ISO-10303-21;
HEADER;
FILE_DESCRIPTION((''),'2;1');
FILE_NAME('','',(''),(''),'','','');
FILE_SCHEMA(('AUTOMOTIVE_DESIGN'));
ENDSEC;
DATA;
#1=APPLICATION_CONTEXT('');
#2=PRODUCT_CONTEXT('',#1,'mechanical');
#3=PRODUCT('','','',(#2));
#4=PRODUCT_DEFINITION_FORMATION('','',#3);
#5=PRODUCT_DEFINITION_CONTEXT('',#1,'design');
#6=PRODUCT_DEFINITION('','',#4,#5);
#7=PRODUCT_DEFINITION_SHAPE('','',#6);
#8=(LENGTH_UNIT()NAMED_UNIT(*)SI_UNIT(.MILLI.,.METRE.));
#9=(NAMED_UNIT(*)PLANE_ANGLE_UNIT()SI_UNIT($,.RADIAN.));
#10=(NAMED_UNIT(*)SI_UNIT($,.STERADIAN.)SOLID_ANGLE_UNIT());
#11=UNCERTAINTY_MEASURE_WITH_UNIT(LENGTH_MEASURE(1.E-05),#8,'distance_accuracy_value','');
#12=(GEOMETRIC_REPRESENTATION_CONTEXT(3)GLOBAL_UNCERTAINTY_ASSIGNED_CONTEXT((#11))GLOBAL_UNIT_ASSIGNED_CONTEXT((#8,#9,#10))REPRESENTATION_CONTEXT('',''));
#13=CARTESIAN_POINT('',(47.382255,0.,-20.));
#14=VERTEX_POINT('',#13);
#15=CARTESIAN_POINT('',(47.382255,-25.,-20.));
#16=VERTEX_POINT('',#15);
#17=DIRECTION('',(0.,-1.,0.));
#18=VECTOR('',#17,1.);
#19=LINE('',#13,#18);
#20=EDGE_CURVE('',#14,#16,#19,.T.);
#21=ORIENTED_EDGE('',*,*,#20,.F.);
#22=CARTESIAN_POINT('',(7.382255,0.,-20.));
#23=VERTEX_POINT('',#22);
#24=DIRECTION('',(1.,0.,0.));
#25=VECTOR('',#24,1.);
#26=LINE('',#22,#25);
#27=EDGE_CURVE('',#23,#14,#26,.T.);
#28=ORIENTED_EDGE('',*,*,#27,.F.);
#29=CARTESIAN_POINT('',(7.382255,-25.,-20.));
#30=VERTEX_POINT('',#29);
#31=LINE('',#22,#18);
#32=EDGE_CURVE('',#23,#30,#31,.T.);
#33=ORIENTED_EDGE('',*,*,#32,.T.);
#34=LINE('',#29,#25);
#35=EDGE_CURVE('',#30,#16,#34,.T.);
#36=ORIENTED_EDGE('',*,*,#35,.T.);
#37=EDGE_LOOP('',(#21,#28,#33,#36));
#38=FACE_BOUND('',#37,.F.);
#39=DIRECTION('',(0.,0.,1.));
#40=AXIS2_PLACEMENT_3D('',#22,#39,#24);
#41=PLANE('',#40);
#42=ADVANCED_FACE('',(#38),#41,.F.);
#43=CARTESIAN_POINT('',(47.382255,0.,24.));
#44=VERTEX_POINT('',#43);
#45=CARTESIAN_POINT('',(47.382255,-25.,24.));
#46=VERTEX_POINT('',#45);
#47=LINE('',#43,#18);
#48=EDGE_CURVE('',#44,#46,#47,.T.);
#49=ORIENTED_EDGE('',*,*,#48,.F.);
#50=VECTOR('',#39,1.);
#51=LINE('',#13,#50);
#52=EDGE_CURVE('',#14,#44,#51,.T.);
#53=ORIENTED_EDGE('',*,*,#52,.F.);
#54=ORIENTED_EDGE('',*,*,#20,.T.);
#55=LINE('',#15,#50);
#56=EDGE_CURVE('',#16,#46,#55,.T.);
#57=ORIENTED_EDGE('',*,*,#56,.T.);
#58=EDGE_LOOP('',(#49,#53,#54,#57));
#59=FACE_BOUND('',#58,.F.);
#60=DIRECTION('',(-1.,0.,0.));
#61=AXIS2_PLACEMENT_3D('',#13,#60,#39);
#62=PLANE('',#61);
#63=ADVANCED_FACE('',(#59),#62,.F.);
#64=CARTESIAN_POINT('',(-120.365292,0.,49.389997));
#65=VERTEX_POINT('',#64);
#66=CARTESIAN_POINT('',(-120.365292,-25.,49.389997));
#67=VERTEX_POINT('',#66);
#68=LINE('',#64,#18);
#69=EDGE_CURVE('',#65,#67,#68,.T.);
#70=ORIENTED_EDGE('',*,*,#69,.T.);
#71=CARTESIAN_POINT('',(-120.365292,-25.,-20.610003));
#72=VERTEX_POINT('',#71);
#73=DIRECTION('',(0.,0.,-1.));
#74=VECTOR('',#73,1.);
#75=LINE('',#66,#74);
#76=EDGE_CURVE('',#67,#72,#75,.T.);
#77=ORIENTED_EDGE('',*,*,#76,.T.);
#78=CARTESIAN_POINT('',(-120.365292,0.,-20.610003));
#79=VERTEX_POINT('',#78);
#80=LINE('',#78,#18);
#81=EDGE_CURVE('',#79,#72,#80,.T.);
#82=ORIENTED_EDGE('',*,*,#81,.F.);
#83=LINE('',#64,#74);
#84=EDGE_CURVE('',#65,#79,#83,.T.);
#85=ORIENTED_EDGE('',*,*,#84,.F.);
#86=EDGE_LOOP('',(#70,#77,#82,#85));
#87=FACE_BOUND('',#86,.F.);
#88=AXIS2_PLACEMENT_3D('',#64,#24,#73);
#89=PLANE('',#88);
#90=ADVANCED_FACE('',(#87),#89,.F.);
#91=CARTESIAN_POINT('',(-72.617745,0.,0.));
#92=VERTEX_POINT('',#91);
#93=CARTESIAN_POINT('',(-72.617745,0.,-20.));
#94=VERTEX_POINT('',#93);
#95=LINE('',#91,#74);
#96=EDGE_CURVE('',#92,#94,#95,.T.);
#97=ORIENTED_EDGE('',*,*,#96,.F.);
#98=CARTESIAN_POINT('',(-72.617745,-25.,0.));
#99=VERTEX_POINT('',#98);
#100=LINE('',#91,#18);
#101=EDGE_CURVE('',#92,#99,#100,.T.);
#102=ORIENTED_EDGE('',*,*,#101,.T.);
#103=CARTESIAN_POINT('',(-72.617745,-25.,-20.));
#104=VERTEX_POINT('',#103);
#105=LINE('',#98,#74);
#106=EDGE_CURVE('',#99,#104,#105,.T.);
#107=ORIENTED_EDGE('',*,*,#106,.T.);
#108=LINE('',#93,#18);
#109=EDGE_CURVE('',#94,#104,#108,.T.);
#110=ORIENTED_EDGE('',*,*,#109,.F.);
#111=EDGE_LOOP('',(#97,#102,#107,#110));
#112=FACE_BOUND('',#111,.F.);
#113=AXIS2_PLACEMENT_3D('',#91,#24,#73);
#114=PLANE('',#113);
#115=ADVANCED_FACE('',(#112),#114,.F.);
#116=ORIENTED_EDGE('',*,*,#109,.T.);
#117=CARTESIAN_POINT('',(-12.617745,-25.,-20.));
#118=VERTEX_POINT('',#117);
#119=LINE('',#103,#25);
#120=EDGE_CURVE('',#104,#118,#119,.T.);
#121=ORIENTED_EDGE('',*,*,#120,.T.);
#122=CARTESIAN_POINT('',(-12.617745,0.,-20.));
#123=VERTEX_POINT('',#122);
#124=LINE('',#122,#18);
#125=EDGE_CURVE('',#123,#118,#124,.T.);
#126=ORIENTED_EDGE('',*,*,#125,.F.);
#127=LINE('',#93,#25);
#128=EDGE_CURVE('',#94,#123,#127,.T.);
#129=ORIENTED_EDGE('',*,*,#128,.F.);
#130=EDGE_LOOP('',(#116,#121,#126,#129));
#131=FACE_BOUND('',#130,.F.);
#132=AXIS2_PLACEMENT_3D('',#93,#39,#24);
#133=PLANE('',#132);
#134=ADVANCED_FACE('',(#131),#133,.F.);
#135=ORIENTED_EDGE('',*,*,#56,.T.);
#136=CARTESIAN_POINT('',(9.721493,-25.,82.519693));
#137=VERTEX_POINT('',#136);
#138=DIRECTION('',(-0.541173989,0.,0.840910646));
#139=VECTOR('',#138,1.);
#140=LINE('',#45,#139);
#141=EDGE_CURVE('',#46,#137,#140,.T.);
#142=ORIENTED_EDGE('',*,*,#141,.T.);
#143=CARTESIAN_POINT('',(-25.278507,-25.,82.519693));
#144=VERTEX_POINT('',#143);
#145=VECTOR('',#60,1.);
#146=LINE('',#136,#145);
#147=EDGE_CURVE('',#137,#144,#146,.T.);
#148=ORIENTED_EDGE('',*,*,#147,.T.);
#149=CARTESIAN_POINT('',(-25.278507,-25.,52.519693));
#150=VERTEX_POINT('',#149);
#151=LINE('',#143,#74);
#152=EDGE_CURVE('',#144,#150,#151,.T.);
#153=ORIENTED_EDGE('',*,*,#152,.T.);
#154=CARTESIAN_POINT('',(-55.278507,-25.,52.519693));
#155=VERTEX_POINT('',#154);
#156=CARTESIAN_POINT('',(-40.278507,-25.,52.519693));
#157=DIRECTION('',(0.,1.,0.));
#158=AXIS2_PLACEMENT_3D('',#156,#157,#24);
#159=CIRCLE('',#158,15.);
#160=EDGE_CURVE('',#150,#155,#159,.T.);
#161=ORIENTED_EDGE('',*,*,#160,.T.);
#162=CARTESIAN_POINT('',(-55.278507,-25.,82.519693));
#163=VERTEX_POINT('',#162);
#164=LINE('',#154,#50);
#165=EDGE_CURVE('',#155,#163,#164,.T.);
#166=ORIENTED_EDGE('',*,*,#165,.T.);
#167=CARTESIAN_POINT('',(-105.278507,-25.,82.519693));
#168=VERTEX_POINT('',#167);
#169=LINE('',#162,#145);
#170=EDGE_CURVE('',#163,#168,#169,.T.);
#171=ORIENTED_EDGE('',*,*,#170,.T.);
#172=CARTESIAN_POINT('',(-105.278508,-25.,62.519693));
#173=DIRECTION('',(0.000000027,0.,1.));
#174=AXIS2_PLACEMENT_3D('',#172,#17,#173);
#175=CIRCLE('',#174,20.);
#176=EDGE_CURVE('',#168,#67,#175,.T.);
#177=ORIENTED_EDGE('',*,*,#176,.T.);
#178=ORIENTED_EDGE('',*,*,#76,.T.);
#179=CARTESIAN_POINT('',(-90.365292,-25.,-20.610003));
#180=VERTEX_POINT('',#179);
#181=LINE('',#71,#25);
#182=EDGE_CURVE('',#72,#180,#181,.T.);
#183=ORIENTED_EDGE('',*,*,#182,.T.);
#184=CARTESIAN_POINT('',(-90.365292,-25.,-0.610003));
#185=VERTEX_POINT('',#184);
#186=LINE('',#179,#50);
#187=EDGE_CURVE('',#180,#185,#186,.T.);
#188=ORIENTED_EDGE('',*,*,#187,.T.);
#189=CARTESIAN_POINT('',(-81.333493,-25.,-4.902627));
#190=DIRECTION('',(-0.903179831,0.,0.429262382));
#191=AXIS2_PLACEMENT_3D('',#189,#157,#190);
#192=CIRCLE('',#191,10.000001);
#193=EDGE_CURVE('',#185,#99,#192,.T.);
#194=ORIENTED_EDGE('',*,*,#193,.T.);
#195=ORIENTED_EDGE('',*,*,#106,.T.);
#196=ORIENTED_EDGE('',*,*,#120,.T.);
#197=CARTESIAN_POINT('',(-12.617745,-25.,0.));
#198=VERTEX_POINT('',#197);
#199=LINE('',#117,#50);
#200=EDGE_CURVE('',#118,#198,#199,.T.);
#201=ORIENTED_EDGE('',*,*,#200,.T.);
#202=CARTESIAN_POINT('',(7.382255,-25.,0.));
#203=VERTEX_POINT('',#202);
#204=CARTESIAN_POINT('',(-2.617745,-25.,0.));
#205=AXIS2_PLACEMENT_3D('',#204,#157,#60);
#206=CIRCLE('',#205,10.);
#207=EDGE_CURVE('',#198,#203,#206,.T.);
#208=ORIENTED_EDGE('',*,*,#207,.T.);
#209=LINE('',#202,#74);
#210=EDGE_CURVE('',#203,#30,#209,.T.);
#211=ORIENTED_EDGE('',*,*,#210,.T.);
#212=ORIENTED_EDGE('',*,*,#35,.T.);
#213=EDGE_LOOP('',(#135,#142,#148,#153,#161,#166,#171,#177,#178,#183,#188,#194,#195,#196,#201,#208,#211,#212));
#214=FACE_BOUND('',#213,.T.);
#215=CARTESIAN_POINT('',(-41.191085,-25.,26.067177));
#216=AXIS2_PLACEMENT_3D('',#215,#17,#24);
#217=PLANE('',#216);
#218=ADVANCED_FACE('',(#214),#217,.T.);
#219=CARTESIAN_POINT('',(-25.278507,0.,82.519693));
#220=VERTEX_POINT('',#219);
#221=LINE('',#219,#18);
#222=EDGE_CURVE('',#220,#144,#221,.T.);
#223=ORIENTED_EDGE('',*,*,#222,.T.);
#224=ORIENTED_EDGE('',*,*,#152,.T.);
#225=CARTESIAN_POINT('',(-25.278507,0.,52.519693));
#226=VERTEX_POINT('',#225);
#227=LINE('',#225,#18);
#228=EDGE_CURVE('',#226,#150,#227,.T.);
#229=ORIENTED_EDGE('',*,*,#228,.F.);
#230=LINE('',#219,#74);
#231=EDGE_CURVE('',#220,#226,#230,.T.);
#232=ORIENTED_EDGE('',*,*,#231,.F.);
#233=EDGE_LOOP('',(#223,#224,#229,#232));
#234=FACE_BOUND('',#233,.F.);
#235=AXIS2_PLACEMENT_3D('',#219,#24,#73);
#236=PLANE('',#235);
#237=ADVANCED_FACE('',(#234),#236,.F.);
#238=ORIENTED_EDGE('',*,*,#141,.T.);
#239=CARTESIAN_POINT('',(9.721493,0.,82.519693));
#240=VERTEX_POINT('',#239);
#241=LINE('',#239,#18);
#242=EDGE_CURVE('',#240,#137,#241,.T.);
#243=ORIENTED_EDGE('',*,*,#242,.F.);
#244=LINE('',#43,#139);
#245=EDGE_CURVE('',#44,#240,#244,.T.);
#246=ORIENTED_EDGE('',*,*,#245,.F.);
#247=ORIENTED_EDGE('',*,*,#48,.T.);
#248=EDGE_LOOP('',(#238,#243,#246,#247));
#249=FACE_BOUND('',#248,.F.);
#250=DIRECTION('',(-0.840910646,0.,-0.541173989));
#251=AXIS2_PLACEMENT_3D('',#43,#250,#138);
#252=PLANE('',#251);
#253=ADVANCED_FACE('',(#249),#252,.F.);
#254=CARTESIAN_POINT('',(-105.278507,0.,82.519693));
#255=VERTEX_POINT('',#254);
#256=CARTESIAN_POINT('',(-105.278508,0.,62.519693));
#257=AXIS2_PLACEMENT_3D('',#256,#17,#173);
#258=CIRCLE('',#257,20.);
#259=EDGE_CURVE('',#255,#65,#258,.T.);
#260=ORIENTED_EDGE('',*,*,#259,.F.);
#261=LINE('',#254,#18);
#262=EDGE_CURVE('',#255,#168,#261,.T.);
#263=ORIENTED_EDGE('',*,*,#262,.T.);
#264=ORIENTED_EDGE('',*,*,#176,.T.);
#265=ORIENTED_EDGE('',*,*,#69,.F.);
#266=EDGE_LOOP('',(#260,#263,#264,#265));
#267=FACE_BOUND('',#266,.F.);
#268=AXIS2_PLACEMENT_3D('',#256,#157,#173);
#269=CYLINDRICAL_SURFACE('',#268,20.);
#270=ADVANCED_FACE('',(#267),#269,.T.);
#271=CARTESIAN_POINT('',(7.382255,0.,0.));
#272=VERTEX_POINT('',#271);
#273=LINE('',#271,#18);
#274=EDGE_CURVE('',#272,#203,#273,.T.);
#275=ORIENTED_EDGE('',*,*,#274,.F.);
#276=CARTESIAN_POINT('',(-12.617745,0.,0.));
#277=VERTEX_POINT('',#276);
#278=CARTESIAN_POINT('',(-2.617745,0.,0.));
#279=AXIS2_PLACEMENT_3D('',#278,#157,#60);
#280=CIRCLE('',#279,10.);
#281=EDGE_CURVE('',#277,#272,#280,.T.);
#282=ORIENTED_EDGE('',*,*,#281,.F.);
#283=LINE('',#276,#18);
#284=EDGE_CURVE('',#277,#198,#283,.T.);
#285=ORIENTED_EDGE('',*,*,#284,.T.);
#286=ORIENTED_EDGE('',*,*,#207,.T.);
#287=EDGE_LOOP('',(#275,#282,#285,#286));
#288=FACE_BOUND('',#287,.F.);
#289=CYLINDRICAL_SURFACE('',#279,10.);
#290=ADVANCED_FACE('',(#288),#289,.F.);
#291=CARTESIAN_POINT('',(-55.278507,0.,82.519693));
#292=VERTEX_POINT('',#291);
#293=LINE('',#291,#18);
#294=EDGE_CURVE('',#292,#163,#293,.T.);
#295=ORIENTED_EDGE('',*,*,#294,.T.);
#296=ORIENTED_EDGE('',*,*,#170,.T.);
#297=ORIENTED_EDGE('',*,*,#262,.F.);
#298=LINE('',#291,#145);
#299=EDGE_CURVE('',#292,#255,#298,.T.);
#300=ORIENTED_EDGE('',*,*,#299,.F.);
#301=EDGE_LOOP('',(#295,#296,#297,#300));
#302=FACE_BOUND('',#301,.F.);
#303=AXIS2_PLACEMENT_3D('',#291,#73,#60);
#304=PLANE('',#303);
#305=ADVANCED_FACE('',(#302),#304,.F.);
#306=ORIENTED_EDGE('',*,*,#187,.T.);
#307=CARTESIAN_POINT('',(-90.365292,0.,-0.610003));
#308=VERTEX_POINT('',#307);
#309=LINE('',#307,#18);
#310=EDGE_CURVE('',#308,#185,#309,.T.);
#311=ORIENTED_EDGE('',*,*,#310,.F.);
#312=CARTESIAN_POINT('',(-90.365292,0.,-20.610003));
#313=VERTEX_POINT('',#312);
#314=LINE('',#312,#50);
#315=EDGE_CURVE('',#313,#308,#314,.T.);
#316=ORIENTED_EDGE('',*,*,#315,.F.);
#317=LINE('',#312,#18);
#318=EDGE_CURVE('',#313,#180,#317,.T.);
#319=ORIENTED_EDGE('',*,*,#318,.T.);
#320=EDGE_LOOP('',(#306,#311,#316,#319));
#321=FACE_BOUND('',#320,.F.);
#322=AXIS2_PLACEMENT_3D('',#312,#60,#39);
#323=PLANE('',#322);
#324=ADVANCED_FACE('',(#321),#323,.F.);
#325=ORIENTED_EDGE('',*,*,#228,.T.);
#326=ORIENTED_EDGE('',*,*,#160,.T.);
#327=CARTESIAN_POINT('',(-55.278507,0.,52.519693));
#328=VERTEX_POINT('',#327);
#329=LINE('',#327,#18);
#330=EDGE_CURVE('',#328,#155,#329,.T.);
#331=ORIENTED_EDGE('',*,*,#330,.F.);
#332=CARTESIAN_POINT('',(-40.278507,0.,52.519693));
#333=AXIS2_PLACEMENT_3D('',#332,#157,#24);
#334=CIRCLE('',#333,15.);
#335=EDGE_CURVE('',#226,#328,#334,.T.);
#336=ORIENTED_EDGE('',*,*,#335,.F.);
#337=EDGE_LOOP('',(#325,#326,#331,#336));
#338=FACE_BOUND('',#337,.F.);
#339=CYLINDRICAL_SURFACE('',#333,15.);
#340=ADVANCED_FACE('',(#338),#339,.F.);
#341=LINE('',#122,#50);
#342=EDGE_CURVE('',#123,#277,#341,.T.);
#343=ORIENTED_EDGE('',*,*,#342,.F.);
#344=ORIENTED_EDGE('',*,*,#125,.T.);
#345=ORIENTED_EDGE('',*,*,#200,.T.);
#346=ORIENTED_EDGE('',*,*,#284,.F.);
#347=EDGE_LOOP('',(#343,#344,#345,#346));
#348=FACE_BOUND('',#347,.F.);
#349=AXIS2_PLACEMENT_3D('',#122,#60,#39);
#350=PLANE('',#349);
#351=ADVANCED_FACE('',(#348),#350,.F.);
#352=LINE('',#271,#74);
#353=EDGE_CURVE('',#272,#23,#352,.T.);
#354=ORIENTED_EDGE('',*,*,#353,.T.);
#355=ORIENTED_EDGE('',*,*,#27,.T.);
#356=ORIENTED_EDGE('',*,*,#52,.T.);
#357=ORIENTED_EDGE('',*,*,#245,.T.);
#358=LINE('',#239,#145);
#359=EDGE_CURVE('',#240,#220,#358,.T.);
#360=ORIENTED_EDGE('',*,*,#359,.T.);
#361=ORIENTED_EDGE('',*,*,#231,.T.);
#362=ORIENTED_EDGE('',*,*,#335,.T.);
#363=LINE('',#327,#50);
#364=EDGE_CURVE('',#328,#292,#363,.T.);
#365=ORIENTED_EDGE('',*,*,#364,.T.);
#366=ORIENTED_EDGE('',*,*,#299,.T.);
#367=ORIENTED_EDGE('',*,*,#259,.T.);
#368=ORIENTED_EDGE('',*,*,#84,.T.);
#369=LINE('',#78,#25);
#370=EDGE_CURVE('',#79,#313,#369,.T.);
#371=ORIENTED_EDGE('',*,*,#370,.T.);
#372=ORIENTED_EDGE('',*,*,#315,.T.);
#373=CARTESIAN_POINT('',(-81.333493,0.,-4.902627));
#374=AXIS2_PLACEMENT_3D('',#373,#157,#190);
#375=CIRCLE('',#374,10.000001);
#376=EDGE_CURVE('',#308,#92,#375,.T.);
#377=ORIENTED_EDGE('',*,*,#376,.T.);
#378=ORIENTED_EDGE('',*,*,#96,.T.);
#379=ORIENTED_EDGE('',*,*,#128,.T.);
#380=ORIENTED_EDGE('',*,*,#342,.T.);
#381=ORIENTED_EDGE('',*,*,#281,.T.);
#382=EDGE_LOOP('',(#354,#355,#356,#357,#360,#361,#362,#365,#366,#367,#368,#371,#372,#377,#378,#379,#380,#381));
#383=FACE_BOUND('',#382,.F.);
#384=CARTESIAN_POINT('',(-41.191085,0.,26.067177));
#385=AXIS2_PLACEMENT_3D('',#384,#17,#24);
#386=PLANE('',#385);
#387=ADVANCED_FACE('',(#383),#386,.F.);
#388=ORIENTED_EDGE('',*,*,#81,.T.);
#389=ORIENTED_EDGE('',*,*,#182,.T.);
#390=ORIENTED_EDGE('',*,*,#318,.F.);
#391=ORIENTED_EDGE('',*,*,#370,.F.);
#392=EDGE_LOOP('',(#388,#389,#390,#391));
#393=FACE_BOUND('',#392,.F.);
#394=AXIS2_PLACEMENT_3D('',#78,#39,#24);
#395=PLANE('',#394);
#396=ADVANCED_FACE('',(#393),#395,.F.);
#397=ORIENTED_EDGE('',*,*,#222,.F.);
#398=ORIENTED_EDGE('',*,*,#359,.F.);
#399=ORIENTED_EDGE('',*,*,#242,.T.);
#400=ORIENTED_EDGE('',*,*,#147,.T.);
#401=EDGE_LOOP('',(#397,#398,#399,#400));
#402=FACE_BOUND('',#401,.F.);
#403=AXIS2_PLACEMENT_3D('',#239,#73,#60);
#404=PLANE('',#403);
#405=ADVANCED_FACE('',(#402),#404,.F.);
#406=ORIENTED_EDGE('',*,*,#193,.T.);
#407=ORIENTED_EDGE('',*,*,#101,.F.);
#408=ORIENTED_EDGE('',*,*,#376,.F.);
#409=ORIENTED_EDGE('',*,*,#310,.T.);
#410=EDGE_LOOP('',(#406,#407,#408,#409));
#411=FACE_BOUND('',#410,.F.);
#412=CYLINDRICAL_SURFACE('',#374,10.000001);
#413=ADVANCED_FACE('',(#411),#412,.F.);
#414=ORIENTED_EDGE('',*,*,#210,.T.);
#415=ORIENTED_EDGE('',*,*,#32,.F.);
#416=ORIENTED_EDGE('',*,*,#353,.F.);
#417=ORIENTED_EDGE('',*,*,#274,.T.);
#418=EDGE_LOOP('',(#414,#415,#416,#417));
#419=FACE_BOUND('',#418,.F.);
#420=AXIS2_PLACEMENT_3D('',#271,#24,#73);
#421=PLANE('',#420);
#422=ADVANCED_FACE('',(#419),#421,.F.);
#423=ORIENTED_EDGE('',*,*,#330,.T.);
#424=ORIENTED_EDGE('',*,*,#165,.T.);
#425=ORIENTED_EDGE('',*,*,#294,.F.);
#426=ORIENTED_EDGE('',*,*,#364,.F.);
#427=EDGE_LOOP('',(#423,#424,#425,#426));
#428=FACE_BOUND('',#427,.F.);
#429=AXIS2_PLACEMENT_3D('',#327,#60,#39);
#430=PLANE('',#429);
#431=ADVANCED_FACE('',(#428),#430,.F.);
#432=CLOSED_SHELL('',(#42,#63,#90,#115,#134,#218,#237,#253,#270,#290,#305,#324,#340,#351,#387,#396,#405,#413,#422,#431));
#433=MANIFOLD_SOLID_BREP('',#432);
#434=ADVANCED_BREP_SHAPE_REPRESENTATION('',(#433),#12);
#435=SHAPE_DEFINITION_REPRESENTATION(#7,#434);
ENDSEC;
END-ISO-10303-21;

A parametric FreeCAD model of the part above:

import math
import FreeCAD as App
import Part
import Sketcher

doc = App.newDocument("Part")
body = doc.addObject("PartDesign::Body", "Body")

sketch1 = doc.addObject("Sketcher::SketchObject", "Sketch")
body.addObject(sketch1)
sketch1.AttachmentSupport = (doc.XZ_Plane, [""])
sketch1.MapMode = "FlatFace"
sketch1.addGeometry([
    Part.LineSegment(App.Vector(-55, 83, 0), App.Vector(-105, 83, 0)),
    Part.ArcOfCircle(Part.Circle(App.Vector(-105, 63, 0), App.Vector(0, 0, 1), 20), math.radians(90), math.radians(221)),
    Part.LineSegment(App.Vector(-120, 49, 0), App.Vector(-120, -21, 0)),
    Part.LineSegment(App.Vector(-120, -21, 0), App.Vector(-90, -21, 0)),
    Part.LineSegment(App.Vector(-90, -21, 0), App.Vector(-90, -1, 0)),
    Part.ArcOfCircle(Part.Circle(App.Vector(-81, -5, 0), App.Vector(0, 0, 1), 10), math.radians(29), math.radians(155)),
    Part.LineSegment(App.Vector(-73, 0, 0), App.Vector(-73, -20, 0)),
    Part.LineSegment(App.Vector(-73, -20, 0), App.Vector(-13, -20, 0)),
    Part.LineSegment(App.Vector(-13, -20, 0), App.Vector(-13, 0, 0)),
    Part.ArcOfCircle(Part.Circle(App.Vector(-3, 0, 0), App.Vector(0, 0, 1), 10), math.radians(0), math.radians(180)),
    Part.LineSegment(App.Vector(7, 0, 0), App.Vector(7, -20, 0)),
    Part.LineSegment(App.Vector(7, -20, 0), App.Vector(47, -20, 0)),
    Part.LineSegment(App.Vector(47, -20, 0), App.Vector(47, 24, 0)),
    Part.LineSegment(App.Vector(47, 24, 0), App.Vector(10, 83, 0)),
    Part.LineSegment(App.Vector(10, 83, 0), App.Vector(-25, 83, 0)),
    Part.LineSegment(App.Vector(-25, 83, 0), App.Vector(-25, 53, 0)),
    Part.ArcOfCircle(Part.Circle(App.Vector(-40, 53, 0), App.Vector(0, 0, 1), 15), math.radians(180), math.radians(360)),
    Part.LineSegment(App.Vector(-55, 53, 0), App.Vector(-55, 83, 0)),
], False)
sketch1.addConstraint([
    Sketcher.Constraint("Tangent", 0, 2, 1, 1),
    Sketcher.Constraint("Coincident", 1, 2, 2, 1),
    Sketcher.Constraint("Coincident", 2, 2, 3, 1),
    Sketcher.Constraint("Coincident", 3, 2, 4, 1),
    Sketcher.Constraint("Coincident", 4, 2, 5, 2),
    Sketcher.Constraint("Coincident", 5, 1, 6, 1),
    Sketcher.Constraint("Coincident", 6, 2, 7, 1),
    Sketcher.Constraint("Coincident", 7, 2, 8, 1),
    Sketcher.Constraint("Tangent", 8, 2, 9, 2),
    Sketcher.Constraint("Tangent", 9, 1, 10, 1),
    Sketcher.Constraint("Coincident", 10, 2, 11, 1),
    Sketcher.Constraint("Coincident", 11, 2, 12, 1),
    Sketcher.Constraint("Coincident", 12, 2, 13, 1),
    Sketcher.Constraint("Coincident", 13, 2, 14, 1),
    Sketcher.Constraint("Coincident", 14, 2, 15, 1),
    Sketcher.Constraint("Tangent", 15, 2, 16, 2),
    Sketcher.Constraint("Tangent", 16, 1, 17, 1),
    Sketcher.Constraint("Coincident", 17, 2, 0, 1),
    Sketcher.Constraint("Horizontal", 0),
    Sketcher.Constraint("Vertical", 2),
    Sketcher.Constraint("Horizontal", 3),
    Sketcher.Constraint("Vertical", 4),
    Sketcher.Constraint("Vertical", 6),
    Sketcher.Constraint("Horizontal", 7),
    Sketcher.Constraint("Vertical", 8),
    Sketcher.Constraint("Vertical", 10),
    Sketcher.Constraint("Horizontal", 11),
    Sketcher.Constraint("Vertical", 12),
    Sketcher.Constraint("Horizontal", 14),
    Sketcher.Constraint("Vertical", 15),
    Sketcher.Constraint("Vertical", 17),
    Sketcher.Constraint("Equal", 5, 9),
    Sketcher.Constraint("PointOnObject", 9, 3, -1),
    Sketcher.Constraint("PointOnObject", 5, 1, -1),
    Sketcher.Constraint("Horizontal", 7, 2, 10, 2),
    Sketcher.Constraint("Horizontal", 0, 2, 13, 2),
    Sketcher.Constraint("Equal", 4, 6),
    Sketcher.Constraint("Equal", 3, 15),
    Sketcher.Constraint("Radius", 1, 20.0),
    Sketcher.Constraint("Radius", 5, 10.000001),
    Sketcher.Constraint("Radius", 16, 15.0),
    Sketcher.Constraint("DistanceX", 0, 2, 0, 1, 50.0),
    Sketcher.Constraint("DistanceX", 3, 1, 3, 2, 30.0),
    Sketcher.Constraint("DistanceX", 7, 1, 7, 2, 60.0),
    Sketcher.Constraint("DistanceX", 11, 1, 11, 2, 40.0),
    Sketcher.Constraint("DistanceX", 14, 2, 14, 1, 35.0),
    Sketcher.Constraint("DistanceY", 2, 2, 2, 1, 70.0),
    Sketcher.Constraint("DistanceY", 4, 1, 4, 2, 20.0),
    Sketcher.Constraint("DistanceY", 12, 1, 12, 2, 44.0),
    Sketcher.Constraint("DistanceX", 1, 2, 5, 3, 39.031799),
    Sketcher.Constraint("DistanceX", 2, 2, -1, 1, 120.365292),
    Sketcher.Constraint("DistanceY", 5, 3, 1, 3, 67.42232),
    Sketcher.Constraint("DistanceX", 16, 3, 9, 3, 37.660762),
])
pad1 = doc.addObject("PartDesign::Pad", "Pad")
body.addObject(pad1)
pad1.Profile = sketch1
pad1.Length = 25

doc.recompute()
